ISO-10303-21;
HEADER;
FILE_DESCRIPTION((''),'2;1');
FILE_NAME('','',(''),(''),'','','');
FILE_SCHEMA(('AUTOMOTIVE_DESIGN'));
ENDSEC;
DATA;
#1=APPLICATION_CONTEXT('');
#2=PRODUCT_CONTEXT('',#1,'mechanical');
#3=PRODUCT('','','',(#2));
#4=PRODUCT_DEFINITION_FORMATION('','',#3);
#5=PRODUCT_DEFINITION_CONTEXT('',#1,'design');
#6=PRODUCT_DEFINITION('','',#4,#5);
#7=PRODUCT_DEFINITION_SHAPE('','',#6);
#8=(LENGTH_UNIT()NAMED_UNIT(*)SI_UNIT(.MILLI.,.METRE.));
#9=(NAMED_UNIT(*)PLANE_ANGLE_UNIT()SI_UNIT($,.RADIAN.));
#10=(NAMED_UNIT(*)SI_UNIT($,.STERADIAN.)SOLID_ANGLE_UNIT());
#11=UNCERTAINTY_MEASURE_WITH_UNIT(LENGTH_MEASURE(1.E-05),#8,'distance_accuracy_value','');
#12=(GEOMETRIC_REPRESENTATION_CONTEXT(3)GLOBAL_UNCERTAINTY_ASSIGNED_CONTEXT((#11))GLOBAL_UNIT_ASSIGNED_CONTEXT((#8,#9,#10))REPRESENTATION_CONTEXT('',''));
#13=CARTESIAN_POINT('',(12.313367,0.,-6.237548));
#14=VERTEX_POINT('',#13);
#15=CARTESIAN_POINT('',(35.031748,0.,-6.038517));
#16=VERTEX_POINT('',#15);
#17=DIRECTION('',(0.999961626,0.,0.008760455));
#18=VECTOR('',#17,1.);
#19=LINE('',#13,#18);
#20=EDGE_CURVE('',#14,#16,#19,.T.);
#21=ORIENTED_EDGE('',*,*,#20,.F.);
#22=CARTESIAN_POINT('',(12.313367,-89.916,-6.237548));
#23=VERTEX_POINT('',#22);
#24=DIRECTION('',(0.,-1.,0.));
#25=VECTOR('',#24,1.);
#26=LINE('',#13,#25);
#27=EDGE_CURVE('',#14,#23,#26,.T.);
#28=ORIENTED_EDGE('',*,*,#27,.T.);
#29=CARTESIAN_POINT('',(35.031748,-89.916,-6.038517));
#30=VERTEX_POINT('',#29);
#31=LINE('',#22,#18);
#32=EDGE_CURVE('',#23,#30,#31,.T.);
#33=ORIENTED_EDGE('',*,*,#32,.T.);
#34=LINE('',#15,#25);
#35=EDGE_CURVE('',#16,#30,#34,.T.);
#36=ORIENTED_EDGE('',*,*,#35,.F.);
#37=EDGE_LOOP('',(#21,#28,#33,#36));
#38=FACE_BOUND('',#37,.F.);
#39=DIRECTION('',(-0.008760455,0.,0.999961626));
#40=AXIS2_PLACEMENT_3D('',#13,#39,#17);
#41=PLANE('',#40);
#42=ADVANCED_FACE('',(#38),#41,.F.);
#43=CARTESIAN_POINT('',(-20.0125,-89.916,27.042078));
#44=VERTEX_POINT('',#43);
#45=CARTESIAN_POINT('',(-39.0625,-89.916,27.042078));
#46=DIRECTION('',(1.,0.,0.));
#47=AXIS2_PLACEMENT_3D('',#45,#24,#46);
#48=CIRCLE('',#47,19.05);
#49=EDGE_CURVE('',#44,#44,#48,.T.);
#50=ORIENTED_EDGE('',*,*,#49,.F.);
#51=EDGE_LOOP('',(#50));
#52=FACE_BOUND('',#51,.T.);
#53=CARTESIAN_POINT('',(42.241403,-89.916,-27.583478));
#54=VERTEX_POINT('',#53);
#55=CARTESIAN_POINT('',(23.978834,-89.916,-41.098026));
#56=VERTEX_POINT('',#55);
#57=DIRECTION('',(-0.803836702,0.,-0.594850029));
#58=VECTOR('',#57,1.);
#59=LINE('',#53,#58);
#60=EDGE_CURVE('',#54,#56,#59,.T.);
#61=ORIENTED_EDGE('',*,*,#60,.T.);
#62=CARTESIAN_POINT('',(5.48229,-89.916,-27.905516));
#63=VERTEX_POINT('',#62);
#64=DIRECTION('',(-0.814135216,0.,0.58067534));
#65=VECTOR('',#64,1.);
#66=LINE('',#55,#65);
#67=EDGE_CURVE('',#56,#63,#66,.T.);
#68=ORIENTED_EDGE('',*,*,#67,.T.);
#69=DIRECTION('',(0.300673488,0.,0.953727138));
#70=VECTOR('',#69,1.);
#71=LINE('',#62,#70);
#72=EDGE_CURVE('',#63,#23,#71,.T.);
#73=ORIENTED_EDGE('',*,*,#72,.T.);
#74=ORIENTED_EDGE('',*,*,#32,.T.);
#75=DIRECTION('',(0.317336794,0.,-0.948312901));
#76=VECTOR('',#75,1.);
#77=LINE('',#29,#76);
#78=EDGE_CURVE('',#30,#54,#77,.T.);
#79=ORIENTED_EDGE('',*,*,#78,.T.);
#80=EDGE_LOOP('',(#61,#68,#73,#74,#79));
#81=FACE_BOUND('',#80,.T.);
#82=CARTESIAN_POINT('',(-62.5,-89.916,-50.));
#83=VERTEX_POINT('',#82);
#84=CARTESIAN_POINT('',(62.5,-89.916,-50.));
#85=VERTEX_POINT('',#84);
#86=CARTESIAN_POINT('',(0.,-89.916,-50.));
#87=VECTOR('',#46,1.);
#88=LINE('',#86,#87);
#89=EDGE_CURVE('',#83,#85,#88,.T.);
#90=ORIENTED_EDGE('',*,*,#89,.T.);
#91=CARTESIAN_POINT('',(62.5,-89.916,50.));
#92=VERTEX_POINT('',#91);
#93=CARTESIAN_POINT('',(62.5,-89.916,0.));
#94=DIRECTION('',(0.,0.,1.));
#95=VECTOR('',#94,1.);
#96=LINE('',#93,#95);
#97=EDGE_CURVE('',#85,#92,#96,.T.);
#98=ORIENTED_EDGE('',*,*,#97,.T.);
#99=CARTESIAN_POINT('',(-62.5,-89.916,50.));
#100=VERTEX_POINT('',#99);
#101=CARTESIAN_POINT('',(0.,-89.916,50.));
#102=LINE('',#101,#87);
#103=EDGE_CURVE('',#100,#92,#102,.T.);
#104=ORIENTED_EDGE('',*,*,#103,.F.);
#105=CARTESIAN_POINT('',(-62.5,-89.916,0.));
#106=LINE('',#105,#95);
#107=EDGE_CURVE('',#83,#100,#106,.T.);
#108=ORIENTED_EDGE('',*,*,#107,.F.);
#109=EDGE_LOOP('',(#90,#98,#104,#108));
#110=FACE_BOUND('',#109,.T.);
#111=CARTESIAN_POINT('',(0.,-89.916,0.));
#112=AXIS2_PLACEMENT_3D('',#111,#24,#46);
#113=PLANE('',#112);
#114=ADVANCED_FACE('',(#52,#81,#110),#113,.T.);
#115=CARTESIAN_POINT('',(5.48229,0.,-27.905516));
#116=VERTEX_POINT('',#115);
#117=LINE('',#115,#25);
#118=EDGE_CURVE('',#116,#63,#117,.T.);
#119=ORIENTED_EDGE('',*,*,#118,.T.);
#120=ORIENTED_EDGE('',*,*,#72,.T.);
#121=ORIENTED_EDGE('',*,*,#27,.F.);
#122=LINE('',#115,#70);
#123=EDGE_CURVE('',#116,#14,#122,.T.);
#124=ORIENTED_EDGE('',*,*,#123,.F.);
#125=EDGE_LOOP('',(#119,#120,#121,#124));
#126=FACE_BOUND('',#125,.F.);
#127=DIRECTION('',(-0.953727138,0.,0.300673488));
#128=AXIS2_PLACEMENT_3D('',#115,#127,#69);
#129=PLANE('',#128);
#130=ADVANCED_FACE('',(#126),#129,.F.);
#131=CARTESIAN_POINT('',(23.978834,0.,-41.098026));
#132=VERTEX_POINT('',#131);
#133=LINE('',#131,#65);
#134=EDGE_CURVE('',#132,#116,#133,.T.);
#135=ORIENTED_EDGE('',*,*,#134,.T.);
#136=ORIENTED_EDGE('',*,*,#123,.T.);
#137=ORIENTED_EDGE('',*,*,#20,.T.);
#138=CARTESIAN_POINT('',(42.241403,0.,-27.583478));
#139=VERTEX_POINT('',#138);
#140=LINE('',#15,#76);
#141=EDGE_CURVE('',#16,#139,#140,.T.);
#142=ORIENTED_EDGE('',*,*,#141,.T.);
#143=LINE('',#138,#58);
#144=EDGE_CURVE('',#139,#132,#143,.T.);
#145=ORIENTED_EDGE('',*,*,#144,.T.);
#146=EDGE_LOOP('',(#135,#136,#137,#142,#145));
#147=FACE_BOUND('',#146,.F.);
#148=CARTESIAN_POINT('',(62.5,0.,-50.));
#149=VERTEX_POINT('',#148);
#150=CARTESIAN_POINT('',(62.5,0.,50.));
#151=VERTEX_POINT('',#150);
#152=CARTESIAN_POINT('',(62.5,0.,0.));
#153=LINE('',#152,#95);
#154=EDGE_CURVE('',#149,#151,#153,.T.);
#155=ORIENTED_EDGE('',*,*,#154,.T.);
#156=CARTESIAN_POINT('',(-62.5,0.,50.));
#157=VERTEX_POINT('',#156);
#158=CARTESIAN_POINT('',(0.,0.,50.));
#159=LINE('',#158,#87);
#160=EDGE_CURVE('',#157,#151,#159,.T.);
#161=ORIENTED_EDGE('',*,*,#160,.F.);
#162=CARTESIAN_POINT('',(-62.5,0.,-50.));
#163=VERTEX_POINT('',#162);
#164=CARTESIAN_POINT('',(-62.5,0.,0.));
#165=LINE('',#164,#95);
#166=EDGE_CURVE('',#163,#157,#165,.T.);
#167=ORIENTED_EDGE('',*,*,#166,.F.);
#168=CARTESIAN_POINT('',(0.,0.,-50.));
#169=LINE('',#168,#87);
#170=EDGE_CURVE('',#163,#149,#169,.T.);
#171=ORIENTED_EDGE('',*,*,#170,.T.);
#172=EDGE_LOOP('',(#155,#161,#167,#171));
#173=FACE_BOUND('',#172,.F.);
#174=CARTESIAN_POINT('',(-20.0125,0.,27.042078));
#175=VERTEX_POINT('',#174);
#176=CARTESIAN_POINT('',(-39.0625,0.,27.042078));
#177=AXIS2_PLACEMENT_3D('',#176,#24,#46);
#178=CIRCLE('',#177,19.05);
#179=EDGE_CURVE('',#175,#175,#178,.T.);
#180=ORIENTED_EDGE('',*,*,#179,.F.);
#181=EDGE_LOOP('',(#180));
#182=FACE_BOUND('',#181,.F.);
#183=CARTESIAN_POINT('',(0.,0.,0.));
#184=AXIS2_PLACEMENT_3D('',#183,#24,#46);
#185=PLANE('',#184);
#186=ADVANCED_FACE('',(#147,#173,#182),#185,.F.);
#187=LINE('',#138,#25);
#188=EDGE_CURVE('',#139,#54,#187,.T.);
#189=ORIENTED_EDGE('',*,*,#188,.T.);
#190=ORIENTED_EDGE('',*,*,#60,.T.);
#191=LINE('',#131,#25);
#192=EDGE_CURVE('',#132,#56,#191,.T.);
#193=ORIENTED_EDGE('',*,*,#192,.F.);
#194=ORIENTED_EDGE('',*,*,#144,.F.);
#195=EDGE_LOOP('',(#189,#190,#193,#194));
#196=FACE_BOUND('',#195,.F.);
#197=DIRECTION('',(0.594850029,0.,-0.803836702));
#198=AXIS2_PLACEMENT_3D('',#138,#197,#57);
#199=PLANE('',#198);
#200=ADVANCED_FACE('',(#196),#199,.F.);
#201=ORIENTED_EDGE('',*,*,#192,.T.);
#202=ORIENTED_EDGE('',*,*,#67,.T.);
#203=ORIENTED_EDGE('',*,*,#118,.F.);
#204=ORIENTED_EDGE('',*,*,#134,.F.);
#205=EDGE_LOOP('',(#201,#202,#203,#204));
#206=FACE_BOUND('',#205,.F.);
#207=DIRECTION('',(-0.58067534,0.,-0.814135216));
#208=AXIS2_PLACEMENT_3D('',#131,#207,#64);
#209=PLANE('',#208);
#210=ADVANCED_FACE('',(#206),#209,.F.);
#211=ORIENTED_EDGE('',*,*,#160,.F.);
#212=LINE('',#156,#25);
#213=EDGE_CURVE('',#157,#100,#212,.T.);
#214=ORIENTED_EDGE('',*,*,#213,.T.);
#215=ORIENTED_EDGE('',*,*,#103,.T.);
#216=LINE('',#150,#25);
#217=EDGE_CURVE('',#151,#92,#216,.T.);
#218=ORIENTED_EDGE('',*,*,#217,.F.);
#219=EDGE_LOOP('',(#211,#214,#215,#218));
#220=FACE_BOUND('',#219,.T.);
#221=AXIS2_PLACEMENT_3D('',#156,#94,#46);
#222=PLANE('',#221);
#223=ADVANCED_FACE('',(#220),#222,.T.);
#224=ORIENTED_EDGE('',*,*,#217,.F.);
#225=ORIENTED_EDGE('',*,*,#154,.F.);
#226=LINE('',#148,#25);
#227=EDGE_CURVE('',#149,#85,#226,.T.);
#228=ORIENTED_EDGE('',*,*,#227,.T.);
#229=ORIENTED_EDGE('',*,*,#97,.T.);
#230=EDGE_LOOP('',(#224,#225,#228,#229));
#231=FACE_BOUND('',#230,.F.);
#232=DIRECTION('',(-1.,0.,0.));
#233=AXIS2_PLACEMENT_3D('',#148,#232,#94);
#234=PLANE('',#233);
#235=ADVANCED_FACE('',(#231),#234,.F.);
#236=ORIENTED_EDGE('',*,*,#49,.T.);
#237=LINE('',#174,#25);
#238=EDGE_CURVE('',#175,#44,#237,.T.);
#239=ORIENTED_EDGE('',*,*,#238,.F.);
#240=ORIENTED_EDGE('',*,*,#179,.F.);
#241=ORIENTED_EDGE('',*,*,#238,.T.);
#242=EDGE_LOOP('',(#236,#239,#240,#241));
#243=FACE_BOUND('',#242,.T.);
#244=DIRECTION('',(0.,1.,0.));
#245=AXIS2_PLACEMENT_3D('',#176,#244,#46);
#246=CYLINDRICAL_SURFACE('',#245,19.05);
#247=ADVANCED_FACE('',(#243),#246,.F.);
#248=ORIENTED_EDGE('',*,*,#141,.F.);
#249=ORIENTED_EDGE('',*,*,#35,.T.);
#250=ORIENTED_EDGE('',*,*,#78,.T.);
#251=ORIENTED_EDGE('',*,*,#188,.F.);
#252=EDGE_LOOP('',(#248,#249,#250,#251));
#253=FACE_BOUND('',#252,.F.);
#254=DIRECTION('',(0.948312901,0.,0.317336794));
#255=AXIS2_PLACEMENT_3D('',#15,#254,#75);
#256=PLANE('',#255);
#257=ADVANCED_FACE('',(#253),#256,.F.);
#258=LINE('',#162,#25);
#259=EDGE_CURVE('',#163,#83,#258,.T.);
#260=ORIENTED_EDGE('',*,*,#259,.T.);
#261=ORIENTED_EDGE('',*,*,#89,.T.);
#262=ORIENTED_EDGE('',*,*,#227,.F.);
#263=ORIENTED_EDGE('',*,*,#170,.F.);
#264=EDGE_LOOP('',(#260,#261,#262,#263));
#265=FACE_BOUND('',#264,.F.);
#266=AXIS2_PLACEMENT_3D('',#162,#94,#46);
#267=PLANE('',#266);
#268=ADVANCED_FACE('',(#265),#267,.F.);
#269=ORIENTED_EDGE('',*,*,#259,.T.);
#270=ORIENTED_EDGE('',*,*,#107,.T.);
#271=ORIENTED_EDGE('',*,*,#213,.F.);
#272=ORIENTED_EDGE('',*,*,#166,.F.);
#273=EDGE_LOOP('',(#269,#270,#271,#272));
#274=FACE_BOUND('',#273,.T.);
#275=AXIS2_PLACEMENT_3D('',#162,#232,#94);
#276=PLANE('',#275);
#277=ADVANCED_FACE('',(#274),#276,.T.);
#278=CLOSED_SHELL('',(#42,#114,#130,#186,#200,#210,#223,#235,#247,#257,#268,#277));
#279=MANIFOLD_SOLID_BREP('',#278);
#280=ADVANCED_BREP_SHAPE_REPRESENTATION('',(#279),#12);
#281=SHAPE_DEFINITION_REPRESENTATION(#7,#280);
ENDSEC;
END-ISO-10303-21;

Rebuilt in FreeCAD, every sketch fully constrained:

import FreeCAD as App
import Part
import Sketcher
Q = App.Units.Quantity


def add_polygon(sketch, points):
    """Adds a closed chain of lines whose ends are joined by coincident constraints."""
    first, n = sketch.GeometryCount, len(points)
    for a, b in zip(points, points[1:] + points[:1]):
        sketch.addGeometry(Part.LineSegment(App.Vector(*a, 0), App.Vector(*b, 0)), False)
    for i in range(n):
        sketch.addConstraint(Sketcher.Constraint("Coincident", first + i, 2, first + (i + 1) % n, 1))

doc = App.newDocument("Part")
params = doc.addObject("Spreadsheet::Sheet", "Params")
for row, (alias, value) in enumerate([
    ("sketch1_diameter", "38.1 mm"),
    ("sketch1_width", "125 mm"),
    ("sketch1_height", "100 mm"),
    ("pad1_length", "89.916 mm"),
], start=1):
    params.set(f"A{row}", alias)
    params.set(f"B{row}", "=" + value)
    params.setAlias(f"B{row}", alias)

body = doc.addObject("PartDesign::Body", "Body")

# Sketch on XZ plane
sketch1 = body.newObject("Sketcher::SketchObject", "Sketch")
sketch1.AttachmentSupport = (doc.getObject("XZ_Plane"), [""])
sketch1.MapMode = "FlatFace"
add_polygon(sketch1, [(-62.5, 50), (-62.5, -50), (62.5, -50), (62.5, 50)])  # lines 0-3
add_polygon(sketch1, [(12.313367, -6.237548), (35.031748, -6.038517), (42.241403, -27.583478), (23.978834, -41.098026), (5.48229, -27.905516)])  # lines 4-8
sketch1.addGeometry(Part.Circle(App.Vector(-39.0625, 27.042078, 0), App.Vector(0, 0, 1), 19.05), False)  # 9
sketch1.addConstraint([
    Sketcher.Constraint("Vertical", 0),
    Sketcher.Constraint("Horizontal", 1),
    Sketcher.Constraint("Vertical", 2),
    Sketcher.Constraint("Horizontal", 3),
    Sketcher.Constraint("Symmetric", 0, 2, 2, 2, -1, 1),
    Sketcher.Constraint("Equal", 4, 5),
    Sketcher.Constraint("Equal", 5, 6),
    Sketcher.Constraint("Equal", 6, 7),
    Sketcher.Constraint("Equal", 7, 8),
    Sketcher.Constraint("Diameter", 9, Q("38.1 mm")),
    Sketcher.Constraint("DistanceX", 1, 1, 1, 2, Q("125 mm")),
    Sketcher.Constraint("DistanceY", 0, 2, 0, 1, Q("100 mm")),
    Sketcher.Constraint("DistanceY", 7, 2, 4, 2, Q("21.866999 mm")),
    Sketcher.Constraint("DistanceX", 9, 3, -1, 1, Q("39.0625 mm")),
    Sketcher.Constraint("DistanceY", -1, 1, 9, 3, Q("27.042078 mm")),
    Sketcher.Constraint("DistanceX", -1, 1, 7, 2, Q("5.48229 mm")),
    Sketcher.Constraint("DistanceY", 8, 2, -1, 1, Q("6.237548 mm")),
    Sketcher.Constraint("DistanceX", 4, 2, 1, 2, Q("27.468252 mm")),
    Sketcher.Constraint("DistanceY", 5, 2, 4, 2, Q("21.544961 mm")),
    Sketcher.Constraint("DistanceY", 5, 2, 2, 2, Q("77.583478 mm")),
])
sketch1.setExpression("Constraints[18]", "Params.sketch1_diameter")
sketch1.setExpression("Constraints[19]", "Params.sketch1_width")
sketch1.setExpression("Constraints[20]", "Params.sketch1_height")
pad1 = body.newObject("PartDesign::Pad", "Pad")
pad1.Profile = sketch1
pad1.setExpression("Length", "Params.pad1_length")

doc.recompute()
